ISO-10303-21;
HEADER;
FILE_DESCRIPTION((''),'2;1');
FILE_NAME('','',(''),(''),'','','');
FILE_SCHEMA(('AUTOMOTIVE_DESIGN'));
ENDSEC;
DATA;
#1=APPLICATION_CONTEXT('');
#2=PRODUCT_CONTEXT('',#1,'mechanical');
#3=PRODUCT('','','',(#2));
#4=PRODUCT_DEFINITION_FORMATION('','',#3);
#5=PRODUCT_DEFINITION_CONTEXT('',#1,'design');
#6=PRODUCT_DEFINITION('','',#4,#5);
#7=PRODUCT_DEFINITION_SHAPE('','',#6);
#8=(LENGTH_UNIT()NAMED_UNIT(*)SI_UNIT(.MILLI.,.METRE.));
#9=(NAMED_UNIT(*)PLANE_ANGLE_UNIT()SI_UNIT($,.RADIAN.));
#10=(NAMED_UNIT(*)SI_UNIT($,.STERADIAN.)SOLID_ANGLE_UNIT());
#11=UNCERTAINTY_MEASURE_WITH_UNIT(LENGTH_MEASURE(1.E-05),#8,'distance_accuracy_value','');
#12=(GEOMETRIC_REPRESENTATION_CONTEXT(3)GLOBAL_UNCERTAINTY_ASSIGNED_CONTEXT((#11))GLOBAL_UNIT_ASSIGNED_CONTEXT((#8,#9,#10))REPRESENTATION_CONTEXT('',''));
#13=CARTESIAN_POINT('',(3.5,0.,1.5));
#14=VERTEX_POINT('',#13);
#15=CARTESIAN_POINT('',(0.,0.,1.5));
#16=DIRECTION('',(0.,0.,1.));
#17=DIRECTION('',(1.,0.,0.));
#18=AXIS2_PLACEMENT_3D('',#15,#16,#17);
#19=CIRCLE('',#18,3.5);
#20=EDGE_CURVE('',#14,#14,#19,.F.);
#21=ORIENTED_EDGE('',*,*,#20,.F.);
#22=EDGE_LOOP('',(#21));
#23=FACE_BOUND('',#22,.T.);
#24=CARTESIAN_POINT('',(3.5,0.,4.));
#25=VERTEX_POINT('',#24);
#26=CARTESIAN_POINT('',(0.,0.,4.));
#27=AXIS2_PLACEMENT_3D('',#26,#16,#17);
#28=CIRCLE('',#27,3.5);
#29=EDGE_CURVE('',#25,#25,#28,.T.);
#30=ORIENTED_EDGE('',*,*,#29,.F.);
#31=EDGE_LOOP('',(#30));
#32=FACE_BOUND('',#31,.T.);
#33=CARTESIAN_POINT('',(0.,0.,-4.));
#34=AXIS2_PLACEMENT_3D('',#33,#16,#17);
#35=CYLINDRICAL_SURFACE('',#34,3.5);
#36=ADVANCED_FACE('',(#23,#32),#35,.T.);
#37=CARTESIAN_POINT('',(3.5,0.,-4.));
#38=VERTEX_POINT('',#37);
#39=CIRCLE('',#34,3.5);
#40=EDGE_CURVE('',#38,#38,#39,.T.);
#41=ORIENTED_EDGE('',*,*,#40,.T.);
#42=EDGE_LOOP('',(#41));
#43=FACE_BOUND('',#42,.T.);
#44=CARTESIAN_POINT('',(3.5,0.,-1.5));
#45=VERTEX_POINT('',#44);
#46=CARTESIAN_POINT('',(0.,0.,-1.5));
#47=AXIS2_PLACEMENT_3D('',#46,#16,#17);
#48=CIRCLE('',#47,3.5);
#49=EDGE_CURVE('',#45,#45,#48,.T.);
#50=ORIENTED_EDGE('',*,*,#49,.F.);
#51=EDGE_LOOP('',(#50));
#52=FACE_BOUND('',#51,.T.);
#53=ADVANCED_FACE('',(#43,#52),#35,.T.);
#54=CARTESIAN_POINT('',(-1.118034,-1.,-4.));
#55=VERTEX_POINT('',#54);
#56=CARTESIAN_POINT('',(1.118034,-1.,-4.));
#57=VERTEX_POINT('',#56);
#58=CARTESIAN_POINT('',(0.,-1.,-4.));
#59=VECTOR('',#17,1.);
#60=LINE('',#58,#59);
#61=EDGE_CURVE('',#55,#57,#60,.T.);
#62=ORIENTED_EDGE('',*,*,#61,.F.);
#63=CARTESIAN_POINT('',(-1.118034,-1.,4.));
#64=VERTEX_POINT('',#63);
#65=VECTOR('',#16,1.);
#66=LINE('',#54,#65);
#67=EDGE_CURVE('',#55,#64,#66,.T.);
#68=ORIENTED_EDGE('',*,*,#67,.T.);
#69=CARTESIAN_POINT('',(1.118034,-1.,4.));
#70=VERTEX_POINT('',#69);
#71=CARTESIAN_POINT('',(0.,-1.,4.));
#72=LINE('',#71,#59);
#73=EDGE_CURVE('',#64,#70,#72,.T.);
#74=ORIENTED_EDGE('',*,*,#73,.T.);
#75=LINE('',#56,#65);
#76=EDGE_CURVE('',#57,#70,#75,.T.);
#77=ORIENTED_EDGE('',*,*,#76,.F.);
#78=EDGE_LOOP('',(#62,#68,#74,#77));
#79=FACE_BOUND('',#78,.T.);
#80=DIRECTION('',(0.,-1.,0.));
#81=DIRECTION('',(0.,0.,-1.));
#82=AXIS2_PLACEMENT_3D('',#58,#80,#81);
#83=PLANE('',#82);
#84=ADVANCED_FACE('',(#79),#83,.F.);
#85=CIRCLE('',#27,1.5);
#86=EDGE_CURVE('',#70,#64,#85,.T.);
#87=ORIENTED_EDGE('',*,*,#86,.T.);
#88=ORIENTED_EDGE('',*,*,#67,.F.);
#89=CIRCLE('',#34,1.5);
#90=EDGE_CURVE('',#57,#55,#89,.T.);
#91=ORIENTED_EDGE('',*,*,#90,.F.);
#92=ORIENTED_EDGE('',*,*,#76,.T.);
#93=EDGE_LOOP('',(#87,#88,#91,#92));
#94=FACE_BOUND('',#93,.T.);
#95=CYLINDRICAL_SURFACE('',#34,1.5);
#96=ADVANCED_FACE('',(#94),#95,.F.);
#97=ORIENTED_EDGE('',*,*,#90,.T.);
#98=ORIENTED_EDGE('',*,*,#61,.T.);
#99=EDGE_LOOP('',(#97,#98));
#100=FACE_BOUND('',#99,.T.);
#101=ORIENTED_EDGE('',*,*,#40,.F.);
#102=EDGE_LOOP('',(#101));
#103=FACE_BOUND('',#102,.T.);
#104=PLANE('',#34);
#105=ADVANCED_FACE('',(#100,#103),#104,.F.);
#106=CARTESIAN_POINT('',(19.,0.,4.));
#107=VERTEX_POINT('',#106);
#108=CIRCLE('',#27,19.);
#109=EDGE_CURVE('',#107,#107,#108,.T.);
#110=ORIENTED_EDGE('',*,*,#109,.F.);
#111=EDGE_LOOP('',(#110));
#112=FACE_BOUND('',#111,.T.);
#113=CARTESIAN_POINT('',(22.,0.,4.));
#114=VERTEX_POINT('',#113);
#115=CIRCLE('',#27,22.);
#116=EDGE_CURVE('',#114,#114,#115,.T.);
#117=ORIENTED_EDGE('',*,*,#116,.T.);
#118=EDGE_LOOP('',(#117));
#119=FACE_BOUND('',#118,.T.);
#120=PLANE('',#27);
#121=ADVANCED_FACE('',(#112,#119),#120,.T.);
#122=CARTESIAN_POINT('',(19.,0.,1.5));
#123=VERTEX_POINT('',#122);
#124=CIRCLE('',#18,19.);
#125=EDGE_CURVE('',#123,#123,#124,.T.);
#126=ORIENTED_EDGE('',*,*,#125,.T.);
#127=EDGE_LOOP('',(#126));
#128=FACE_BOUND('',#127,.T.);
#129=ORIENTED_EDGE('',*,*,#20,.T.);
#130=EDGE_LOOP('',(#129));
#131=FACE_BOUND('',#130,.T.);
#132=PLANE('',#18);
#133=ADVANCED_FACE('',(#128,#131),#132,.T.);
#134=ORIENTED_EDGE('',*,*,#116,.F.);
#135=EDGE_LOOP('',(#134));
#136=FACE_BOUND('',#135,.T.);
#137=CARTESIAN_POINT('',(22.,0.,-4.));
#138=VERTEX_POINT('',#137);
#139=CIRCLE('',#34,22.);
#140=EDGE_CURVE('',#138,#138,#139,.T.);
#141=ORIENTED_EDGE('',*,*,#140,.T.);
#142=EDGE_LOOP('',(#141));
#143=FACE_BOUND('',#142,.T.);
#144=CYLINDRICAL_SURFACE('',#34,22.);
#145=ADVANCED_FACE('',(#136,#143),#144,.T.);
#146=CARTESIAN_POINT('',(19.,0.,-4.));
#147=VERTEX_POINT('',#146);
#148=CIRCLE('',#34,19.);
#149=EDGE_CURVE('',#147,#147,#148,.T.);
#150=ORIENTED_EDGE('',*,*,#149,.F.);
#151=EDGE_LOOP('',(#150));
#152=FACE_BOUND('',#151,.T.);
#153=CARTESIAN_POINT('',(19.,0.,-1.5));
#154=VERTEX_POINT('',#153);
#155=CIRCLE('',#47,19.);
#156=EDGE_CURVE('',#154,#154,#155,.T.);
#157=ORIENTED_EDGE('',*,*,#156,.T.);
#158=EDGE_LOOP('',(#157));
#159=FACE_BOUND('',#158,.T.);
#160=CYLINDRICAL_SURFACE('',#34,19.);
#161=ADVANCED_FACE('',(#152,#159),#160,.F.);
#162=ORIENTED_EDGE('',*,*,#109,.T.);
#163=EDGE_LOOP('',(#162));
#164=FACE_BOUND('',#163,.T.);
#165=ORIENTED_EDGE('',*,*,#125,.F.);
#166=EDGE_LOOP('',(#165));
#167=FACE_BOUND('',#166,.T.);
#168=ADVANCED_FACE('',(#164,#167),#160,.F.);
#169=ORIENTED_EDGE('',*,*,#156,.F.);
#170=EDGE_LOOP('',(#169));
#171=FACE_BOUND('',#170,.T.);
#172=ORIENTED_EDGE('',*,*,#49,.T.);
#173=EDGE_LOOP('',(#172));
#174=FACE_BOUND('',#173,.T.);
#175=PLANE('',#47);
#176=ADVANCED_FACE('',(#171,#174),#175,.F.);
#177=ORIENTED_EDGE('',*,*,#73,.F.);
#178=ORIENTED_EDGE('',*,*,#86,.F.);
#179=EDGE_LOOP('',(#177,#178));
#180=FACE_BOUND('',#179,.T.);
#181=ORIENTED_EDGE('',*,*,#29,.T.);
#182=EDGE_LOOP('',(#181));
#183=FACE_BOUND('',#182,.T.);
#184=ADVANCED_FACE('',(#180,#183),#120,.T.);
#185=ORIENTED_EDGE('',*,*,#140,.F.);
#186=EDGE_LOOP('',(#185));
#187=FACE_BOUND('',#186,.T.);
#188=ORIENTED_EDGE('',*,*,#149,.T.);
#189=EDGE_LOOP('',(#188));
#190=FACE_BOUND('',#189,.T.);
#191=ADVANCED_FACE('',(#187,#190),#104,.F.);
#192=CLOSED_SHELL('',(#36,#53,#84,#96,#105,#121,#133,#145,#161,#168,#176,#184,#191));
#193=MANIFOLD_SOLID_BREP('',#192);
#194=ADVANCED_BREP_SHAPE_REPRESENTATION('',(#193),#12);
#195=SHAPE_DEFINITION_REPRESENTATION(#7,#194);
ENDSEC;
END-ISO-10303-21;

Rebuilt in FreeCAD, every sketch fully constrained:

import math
import FreeCAD as App
import Part
import Sketcher
from FreeCAD import Vector

doc = App.newDocument("Part")
body = doc.addObject("PartDesign::Body", "Body")

# Sketch on XY plane
sketch1 = doc.addObject("Sketcher::SketchObject", "Sketch")
body.addObject(sketch1)
sketch1.AttachmentSupport = (doc.XY_Plane, [""])
sketch1.MapMode = "FlatFace"
sketch1.addGeometry([
    Part.Circle(Vector(0, 0, 0), Vector(0, 0, 1), 3.5),
    Part.ArcOfCircle(Part.Circle(Vector(0, 0, 0), Vector(0, 0, 1), 1.5), math.radians(-42), math.radians(222)),
    Part.LineSegment(Vector(1.1, -1, 0), Vector(-1.1, -1, 0)),
], False)
sketch1.addConstraint([
    Sketcher.Constraint("Coincident", 1, 1, 2, 1),
    Sketcher.Constraint("Coincident", 2, 2, 1, 2),
    Sketcher.Constraint("Horizontal", 2),
    Sketcher.Constraint("Coincident", 0, 3, -1, 1),
    Sketcher.Constraint("Coincident", 1, 3, -1, 1),
    Sketcher.Constraint("Diameter", 0, 7.0),
    Sketcher.Constraint("Radius", 1, 1.5),
    Sketcher.Constraint("DistanceY", 1, 1, -1, 1, 1.0),
])
pad1 = doc.addObject("PartDesign::Pad", "Pad")
body.addObject(pad1)
pad1.Profile = sketch1
pad1.Type = "TwoLengths"
pad1.Length = 4
pad1.Length2 = 4
body2 = doc.addObject("PartDesign::Body", "Body001")

# Sketch on XY plane
sketch2 = doc.addObject("Sketcher::SketchObject", "Sketch001")
body2.addObject(sketch2)
sketch2.AttachmentSupport = (doc.getObject("XY_Plane001"), [""])
sketch2.MapMode = "FlatFace"
sketch2.addGeometry([
    Part.Circle(Vector(0, 0, 0), Vector(0, 0, 1), 22),
    Part.Circle(Vector(0, 0, 0), Vector(0, 0, 1), 19),
], False)
sketch2.addConstraint([
    Sketcher.Constraint("Coincident", 0, 3, -1, 1),
    Sketcher.Constraint("Coincident", 1, 3, -1, 1),
    Sketcher.Constraint("Diameter", 0, 44.0),
    Sketcher.Constraint("Diameter", 1, 38.0),
])
pad2 = doc.addObject("PartDesign::Pad", "Pad001")
body2.addObject(pad2)
pad2.Profile = sketch2
pad2.Type = "TwoLengths"
pad2.Length = 4
pad2.Length2 = 4
body.AllowCompound = True
doc.recompute()

boolean = doc.addObject("PartDesign::Boolean", "Boolean")
body.addObject(boolean)
boolean.Type = "Fuse"
boolean.addObjects([body2])

# Sketch on XY plane
sketch3 = doc.addObject("Sketcher::SketchObject", "Sketch002")
body.addObject(sketch3)
sketch3.AttachmentSupport = (doc.XY_Plane, [""])
sketch3.MapMode = "FlatFace"
sketch3.addGeometry([
    Part.Circle(Vector(0, 0, 0), Vector(0, 0, 1), 19),
    Part.Circle(Vector(0, 0, 0), Vector(0, 0, 1), 3.5),
], False)
sketch3.addConstraint([
    Sketcher.Constraint("Coincident", 0, 3, -1, 1),
    Sketcher.Constraint("Coincident", 1, 3, -1, 1),
    Sketcher.Constraint("Diameter", 0, 38.0),
    Sketcher.Constraint("Diameter", 1, 7.0),
])
pad3 = doc.addObject("PartDesign::Pad", "Pad002")
body.addObject(pad3)
pad3.Profile = sketch3
pad3.Type = "TwoLengths"
pad3.Length = 1.5
pad3.Length2 = 1.5

doc.recompute()
